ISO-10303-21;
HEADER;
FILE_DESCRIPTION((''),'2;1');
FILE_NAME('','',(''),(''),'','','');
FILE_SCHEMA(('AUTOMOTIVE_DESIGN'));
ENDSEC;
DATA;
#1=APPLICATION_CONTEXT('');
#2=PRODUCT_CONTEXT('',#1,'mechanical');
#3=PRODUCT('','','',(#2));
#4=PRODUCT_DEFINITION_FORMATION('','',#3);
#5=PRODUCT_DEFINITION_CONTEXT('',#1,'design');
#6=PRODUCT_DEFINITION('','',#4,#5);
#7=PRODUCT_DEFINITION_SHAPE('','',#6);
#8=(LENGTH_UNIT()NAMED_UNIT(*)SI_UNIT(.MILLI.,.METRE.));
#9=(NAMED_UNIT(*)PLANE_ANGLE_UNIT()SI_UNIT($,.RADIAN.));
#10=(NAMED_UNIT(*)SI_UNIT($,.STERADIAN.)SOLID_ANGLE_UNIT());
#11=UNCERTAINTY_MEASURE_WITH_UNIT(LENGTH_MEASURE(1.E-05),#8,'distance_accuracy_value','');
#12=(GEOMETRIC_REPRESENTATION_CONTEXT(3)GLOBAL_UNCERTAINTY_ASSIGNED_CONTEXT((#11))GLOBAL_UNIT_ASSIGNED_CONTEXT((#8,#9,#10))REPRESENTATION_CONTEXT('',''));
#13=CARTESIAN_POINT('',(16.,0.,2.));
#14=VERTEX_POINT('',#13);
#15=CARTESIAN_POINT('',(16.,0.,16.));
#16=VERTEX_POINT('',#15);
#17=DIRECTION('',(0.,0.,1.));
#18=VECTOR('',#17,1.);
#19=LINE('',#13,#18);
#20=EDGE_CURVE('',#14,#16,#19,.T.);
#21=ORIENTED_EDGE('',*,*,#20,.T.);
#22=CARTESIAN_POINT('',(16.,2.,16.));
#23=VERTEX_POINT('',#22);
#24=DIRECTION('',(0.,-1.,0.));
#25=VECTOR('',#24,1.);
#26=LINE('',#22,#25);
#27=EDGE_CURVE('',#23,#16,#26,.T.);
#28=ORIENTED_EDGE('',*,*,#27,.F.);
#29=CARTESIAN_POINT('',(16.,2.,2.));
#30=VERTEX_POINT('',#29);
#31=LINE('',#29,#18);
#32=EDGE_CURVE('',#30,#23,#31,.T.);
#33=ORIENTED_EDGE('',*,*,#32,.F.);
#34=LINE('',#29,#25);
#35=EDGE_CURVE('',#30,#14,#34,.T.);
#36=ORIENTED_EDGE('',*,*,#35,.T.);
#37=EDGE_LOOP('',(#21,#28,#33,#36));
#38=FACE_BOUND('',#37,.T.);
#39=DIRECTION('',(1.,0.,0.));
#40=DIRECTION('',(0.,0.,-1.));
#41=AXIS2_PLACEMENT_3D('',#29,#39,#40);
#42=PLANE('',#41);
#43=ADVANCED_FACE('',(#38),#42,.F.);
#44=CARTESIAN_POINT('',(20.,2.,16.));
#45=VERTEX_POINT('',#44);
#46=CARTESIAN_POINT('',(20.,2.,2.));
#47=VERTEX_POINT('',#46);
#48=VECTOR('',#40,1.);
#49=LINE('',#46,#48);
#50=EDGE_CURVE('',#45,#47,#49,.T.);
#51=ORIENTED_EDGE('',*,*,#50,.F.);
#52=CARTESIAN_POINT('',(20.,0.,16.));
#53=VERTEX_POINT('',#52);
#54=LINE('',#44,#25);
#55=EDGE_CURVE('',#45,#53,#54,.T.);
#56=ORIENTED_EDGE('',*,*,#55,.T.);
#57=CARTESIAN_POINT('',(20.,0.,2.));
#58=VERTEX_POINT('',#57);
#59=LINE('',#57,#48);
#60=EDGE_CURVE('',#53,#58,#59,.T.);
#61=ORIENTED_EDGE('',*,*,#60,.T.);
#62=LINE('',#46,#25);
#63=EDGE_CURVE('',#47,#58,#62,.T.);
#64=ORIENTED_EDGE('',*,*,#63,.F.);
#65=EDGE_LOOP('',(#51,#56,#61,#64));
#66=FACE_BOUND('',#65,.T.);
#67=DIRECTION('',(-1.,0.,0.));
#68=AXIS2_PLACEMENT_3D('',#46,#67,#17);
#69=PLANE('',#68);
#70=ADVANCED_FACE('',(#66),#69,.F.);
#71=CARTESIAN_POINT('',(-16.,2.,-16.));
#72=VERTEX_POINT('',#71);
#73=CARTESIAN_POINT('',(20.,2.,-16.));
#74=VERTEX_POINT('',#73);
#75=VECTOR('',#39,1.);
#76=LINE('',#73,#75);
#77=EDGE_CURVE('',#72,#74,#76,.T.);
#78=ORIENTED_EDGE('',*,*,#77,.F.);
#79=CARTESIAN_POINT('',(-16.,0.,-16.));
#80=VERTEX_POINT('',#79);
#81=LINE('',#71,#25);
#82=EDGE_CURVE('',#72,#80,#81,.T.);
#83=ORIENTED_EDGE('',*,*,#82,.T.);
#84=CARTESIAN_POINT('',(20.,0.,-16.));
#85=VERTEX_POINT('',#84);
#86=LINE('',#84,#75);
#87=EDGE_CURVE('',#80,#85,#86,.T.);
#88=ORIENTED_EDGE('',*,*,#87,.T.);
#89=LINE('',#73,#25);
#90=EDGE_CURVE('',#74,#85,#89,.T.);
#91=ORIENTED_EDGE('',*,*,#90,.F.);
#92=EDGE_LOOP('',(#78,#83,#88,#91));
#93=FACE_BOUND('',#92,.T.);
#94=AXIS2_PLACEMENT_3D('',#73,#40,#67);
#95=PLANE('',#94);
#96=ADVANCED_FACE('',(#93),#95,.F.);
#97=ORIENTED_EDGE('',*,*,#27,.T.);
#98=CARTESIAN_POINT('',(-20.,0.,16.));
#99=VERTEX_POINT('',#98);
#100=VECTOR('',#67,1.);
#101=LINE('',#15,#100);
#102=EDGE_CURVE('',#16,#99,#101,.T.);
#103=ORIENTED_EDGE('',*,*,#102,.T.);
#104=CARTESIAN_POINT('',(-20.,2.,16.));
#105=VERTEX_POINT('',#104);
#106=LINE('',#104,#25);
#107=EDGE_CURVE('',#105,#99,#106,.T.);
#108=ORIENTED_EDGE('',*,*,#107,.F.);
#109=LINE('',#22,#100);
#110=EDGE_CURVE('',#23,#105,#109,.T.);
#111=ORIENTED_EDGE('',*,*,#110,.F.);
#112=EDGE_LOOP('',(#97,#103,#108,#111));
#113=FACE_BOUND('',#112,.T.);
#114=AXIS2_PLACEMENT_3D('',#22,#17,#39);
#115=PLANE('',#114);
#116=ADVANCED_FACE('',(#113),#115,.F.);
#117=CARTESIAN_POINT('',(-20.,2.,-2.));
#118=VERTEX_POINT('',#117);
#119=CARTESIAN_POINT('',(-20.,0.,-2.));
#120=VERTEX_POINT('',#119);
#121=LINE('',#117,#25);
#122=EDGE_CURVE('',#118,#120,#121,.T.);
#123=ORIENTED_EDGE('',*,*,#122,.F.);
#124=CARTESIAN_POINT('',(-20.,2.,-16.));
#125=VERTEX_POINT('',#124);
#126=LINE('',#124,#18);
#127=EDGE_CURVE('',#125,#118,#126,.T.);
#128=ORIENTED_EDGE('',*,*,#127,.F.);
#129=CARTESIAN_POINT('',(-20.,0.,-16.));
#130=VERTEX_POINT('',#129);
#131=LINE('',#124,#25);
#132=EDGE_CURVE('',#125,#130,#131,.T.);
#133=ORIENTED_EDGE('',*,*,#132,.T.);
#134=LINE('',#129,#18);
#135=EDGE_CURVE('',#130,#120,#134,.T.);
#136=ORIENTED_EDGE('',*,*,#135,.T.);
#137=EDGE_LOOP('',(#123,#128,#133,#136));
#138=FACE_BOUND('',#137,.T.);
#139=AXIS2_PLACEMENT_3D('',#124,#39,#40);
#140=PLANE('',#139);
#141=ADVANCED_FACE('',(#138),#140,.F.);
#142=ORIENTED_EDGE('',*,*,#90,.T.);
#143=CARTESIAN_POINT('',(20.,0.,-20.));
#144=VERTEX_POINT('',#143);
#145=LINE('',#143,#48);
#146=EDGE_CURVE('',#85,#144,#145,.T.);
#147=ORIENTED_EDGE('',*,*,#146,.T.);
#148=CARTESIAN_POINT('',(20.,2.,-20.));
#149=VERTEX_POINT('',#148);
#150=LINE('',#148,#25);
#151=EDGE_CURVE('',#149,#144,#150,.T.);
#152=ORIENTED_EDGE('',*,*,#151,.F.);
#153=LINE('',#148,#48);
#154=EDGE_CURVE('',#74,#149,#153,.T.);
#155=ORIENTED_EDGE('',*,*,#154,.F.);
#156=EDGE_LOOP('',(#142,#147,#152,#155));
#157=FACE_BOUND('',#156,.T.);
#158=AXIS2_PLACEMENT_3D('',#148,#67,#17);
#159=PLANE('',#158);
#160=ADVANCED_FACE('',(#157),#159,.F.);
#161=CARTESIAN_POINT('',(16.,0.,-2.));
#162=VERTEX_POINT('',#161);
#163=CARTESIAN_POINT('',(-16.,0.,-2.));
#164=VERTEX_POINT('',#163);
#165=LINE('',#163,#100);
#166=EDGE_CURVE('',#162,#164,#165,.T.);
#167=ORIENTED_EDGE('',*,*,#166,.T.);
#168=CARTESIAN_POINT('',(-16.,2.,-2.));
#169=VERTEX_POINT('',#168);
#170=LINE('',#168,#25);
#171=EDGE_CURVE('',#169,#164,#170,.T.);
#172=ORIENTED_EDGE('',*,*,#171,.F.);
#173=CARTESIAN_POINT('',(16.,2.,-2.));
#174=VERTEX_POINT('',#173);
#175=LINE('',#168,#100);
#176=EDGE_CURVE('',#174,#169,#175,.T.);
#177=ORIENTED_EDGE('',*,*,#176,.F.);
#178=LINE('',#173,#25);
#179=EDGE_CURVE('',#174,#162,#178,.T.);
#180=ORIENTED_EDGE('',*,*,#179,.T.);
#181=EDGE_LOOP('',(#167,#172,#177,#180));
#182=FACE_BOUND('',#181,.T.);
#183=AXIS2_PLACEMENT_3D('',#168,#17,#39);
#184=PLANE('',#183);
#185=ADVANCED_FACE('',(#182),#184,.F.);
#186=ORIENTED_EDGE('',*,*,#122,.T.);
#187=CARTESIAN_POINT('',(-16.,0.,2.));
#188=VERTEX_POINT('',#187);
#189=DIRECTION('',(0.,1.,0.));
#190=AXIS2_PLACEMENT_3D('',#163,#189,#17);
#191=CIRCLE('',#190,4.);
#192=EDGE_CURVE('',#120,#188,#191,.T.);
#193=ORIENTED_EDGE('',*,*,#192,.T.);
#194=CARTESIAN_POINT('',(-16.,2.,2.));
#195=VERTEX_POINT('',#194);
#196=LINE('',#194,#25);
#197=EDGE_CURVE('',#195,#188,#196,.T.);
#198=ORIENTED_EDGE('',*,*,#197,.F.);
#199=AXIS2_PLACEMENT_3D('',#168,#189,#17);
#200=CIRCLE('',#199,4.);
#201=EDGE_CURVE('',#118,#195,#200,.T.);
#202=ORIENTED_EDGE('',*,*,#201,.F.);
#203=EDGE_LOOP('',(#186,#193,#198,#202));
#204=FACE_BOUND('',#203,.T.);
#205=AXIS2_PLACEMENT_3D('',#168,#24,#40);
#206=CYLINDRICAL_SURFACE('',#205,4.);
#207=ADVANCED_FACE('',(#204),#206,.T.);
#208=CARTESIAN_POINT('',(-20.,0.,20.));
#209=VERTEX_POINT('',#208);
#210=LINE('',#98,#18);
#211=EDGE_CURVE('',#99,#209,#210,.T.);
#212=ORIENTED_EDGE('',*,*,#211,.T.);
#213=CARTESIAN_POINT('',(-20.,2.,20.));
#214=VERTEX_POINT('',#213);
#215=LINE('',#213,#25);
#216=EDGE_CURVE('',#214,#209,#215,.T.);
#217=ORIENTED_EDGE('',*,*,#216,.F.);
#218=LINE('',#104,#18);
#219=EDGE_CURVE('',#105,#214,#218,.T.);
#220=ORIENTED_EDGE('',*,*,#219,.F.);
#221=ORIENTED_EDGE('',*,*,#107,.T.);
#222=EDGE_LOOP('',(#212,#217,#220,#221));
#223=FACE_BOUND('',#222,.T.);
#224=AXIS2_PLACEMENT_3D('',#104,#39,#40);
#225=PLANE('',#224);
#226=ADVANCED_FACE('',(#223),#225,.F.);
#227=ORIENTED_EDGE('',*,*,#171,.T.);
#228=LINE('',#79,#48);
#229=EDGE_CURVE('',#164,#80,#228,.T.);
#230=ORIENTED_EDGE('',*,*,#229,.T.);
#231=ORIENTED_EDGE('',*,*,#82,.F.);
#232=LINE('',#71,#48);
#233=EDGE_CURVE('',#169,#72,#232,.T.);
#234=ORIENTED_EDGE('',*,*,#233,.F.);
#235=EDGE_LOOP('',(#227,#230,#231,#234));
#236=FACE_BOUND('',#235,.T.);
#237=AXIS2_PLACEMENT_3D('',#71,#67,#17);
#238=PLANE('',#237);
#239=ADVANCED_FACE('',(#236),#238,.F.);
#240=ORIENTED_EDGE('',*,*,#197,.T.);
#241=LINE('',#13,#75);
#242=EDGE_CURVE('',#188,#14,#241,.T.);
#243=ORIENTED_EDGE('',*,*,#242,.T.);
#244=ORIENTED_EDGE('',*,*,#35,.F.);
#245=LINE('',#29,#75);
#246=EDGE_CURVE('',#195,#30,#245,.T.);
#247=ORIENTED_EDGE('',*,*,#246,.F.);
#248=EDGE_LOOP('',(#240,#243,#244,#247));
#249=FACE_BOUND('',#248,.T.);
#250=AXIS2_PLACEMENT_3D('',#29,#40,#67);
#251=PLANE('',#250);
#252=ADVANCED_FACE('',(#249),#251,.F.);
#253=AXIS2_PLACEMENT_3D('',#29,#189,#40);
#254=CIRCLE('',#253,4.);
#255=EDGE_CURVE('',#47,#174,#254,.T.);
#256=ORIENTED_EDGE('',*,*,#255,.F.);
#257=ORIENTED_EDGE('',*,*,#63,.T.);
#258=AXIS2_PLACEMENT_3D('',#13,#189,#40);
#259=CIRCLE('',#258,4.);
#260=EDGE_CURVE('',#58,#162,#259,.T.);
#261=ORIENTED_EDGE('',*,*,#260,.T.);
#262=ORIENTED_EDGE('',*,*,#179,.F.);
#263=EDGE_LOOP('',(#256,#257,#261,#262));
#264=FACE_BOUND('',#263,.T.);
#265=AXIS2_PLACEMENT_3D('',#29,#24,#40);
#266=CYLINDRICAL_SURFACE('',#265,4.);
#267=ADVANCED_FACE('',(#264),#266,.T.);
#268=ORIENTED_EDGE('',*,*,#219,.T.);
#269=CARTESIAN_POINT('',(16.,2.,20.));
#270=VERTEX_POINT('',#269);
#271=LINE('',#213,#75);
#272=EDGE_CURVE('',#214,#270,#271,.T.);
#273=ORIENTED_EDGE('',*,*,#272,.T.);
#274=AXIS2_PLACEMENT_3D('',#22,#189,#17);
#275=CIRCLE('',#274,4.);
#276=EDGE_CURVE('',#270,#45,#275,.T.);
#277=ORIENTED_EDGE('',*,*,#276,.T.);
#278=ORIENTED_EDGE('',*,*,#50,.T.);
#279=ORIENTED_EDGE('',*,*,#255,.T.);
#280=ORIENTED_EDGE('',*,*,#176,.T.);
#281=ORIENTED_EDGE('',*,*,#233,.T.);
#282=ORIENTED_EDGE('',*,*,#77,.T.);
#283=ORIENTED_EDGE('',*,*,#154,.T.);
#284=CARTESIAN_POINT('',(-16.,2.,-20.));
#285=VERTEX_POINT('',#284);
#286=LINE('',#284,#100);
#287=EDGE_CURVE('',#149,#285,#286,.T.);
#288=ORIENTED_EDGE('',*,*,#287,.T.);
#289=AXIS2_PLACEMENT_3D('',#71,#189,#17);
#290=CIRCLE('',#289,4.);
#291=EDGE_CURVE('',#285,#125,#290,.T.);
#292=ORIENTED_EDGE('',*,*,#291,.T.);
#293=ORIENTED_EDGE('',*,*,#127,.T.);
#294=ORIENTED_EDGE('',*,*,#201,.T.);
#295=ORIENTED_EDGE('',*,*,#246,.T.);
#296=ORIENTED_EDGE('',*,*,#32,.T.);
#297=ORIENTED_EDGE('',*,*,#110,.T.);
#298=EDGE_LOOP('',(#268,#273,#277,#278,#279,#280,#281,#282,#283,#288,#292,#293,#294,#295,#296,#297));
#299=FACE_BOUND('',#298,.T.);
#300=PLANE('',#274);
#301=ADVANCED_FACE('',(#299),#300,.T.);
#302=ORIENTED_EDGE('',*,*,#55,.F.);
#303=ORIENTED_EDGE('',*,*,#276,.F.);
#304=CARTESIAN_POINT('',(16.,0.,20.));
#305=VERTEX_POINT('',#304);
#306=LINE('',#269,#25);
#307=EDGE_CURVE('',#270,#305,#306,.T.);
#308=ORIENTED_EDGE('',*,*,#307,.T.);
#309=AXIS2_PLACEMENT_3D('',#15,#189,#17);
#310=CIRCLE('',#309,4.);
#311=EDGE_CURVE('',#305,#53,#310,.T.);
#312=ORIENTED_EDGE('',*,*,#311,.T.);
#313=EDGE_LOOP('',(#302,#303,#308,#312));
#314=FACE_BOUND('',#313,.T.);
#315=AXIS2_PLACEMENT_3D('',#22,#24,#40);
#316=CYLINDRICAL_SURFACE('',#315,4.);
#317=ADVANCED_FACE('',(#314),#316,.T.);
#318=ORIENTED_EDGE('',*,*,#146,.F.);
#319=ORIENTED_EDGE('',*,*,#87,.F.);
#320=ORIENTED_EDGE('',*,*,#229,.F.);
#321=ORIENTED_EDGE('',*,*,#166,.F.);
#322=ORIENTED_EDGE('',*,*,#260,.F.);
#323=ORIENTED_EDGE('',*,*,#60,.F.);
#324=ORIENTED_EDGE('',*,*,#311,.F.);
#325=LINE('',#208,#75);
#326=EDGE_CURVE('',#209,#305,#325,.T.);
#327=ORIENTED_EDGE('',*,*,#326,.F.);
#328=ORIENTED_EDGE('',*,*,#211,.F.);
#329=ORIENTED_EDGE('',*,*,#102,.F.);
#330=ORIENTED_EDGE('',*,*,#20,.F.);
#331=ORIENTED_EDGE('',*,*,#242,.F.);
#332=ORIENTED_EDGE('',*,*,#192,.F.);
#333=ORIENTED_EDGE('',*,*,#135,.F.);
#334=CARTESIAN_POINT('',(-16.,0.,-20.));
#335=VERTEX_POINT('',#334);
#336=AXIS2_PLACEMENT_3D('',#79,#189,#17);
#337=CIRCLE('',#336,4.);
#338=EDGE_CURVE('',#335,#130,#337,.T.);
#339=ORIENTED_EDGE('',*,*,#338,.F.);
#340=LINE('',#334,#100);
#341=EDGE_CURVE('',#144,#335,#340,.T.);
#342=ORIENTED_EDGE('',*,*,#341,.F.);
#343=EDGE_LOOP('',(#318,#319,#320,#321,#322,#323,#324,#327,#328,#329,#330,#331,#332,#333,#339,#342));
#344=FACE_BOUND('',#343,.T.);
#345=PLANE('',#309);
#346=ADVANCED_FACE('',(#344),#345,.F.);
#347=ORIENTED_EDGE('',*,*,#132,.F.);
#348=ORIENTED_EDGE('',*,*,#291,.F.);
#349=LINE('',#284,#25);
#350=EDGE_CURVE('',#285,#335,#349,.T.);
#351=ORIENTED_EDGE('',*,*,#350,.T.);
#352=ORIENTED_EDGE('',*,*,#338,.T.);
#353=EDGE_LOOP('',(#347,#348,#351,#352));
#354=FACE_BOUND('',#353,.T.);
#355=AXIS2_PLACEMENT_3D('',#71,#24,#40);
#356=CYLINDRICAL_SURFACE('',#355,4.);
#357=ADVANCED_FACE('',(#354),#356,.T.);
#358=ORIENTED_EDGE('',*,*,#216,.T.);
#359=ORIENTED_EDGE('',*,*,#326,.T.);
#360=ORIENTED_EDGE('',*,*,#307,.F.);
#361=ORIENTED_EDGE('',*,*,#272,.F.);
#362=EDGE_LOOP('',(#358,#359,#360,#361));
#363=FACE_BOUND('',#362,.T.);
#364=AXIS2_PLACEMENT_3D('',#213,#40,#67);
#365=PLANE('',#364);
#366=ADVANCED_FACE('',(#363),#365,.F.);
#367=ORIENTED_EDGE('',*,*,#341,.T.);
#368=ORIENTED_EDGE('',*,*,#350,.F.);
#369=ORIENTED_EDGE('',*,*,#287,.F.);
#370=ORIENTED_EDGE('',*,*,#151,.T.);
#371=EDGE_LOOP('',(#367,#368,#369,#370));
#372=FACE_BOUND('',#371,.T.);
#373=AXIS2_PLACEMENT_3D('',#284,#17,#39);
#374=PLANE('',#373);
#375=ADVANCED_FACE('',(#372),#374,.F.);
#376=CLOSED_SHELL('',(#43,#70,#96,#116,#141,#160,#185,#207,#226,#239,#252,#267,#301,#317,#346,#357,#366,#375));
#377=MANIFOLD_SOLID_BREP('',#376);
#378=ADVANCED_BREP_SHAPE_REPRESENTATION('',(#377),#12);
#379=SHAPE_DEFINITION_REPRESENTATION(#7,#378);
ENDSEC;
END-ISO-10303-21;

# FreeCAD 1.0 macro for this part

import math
import FreeCAD as App
import Part
import Sketcher
Q = App.Units.Quantity

doc = App.newDocument("Part")
body = doc.addObject("PartDesign::Body", "Body")

sketch1 = doc.addObject("Sketcher::SketchObject", "Sketch")
body.addObject(sketch1)
sketch1.AttachmentSupport = (doc.XZ_Plane, [""])
sketch1.MapMode = "FlatFace"
sketch1.addGeometry([
    Part.LineSegment(App.Vector(20, -16, 0), App.Vector(20, -20, 0)),
    Part.LineSegment(App.Vector(20, -20, 0), App.Vector(-16, -20, 0)),
    Part.ArcOfCircle(Part.Circle(App.Vector(-16, -16, 0), App.Vector(0, 0, 1), 4), math.radians(180), math.radians(270)),
    Part.LineSegment(App.Vector(-20, -16, 0), App.Vector(-20, -2, 0)),
    Part.ArcOfCircle(Part.Circle(App.Vector(-16, -2, 0), App.Vector(0, 0, 1), 4), math.radians(90), math.radians(180)),
    Part.LineSegment(App.Vector(-16, 2, 0), App.Vector(16, 2, 0)),
    Part.LineSegment(App.Vector(16, 2, 0), App.Vector(16, 16, 0)),
    Part.LineSegment(App.Vector(16, 16, 0), App.Vector(-20, 16, 0)),
    Part.LineSegment(App.Vector(-20, 16, 0), App.Vector(-20, 20, 0)),
    Part.LineSegment(App.Vector(-20, 20, 0), App.Vector(16, 20, 0)),
    Part.ArcOfCircle(Part.Circle(App.Vector(16, 16, 0), App.Vector(0, 0, 1), 4), math.radians(0), math.radians(90)),
    Part.LineSegment(App.Vector(20, 16, 0), App.Vector(20, 2, 0)),
    Part.ArcOfCircle(Part.Circle(App.Vector(16, 2, 0), App.Vector(0, 0, 1), 4), math.radians(-90), math.radians(0)),
    Part.LineSegment(App.Vector(16, -2, 0), App.Vector(-16, -2, 0)),
    Part.LineSegment(App.Vector(-16, -2, 0), App.Vector(-16, -16, 0)),
    Part.LineSegment(App.Vector(-16, -16, 0), App.Vector(20, -16, 0)),
], False)
sketch1.addConstraint([
    Sketcher.Constraint("Coincident", 0, 2, 1, 1),
    Sketcher.Constraint("Tangent", 1, 2, 2, 2),
    Sketcher.Constraint("Tangent", 2, 1, 3, 1),
    Sketcher.Constraint("Tangent", 3, 2, 4, 2),
    Sketcher.Constraint("Tangent", 4, 1, 5, 1),
    Sketcher.Constraint("Coincident", 5, 2, 6, 1),
    Sketcher.Constraint("Coincident", 6, 2, 7, 1),
    Sketcher.Constraint("Coincident", 7, 2, 8, 1),
    Sketcher.Constraint("Coincident", 8, 2, 9, 1),
    Sketcher.Constraint("Tangent", 9, 2, 10, 2),
    Sketcher.Constraint("Tangent", 10, 1, 11, 1),
    Sketcher.Constraint("Tangent", 11, 2, 12, 2),
    Sketcher.Constraint("Tangent", 12, 1, 13, 1),
    Sketcher.Constraint("Coincident", 13, 2, 14, 1),
    Sketcher.Constraint("Coincident", 14, 2, 15, 1),
    Sketcher.Constraint("Coincident", 15, 2, 0, 1),
    Sketcher.Constraint("Vertical", 0),
    Sketcher.Constraint("Horizontal", 1),
    Sketcher.Constraint("Vertical", 3),
    Sketcher.Constraint("Horizontal", 5),
    Sketcher.Constraint("Vertical", 6),
    Sketcher.Constraint("Horizontal", 7),
    Sketcher.Constraint("Vertical", 8),
    Sketcher.Constraint("Horizontal", 9),
    Sketcher.Constraint("Vertical", 11),
    Sketcher.Constraint("Horizontal", 13),
    Sketcher.Constraint("Vertical", 14),
    Sketcher.Constraint("Horizontal", 15),
    Sketcher.Constraint("Coincident", 5, 2, 12, 3),
    Sketcher.Constraint("Coincident", 6, 2, 10, 3),
    Sketcher.Constraint("Coincident", 13, 2, 4, 3),
    Sketcher.Constraint("Coincident", 14, 2, 2, 3),
    Sketcher.Constraint("Symmetric", 2, 3, 10, 3, -1, 1),
    Sketcher.Constraint("Vertical", 3, 2, 7, 2),
    Sketcher.Constraint("Vertical", 0, 2, 10, 1),
    Sketcher.Constraint("Equal", 3, 6),
    Sketcher.Constraint("Radius", 2, Q("4 mm")),
    Sketcher.Constraint("DistanceX", 1, 2, 1, 1, Q("36 mm")),
    Sketcher.Constraint("DistanceY", 3, 1, 3, 2, Q("14 mm")),
])
pad1 = doc.addObject("PartDesign::Pad", "Pad")
body.addObject(pad1)
pad1.Profile = sketch1
pad1.Length = 2
pad1.Reversed = True

doc.recompute()
